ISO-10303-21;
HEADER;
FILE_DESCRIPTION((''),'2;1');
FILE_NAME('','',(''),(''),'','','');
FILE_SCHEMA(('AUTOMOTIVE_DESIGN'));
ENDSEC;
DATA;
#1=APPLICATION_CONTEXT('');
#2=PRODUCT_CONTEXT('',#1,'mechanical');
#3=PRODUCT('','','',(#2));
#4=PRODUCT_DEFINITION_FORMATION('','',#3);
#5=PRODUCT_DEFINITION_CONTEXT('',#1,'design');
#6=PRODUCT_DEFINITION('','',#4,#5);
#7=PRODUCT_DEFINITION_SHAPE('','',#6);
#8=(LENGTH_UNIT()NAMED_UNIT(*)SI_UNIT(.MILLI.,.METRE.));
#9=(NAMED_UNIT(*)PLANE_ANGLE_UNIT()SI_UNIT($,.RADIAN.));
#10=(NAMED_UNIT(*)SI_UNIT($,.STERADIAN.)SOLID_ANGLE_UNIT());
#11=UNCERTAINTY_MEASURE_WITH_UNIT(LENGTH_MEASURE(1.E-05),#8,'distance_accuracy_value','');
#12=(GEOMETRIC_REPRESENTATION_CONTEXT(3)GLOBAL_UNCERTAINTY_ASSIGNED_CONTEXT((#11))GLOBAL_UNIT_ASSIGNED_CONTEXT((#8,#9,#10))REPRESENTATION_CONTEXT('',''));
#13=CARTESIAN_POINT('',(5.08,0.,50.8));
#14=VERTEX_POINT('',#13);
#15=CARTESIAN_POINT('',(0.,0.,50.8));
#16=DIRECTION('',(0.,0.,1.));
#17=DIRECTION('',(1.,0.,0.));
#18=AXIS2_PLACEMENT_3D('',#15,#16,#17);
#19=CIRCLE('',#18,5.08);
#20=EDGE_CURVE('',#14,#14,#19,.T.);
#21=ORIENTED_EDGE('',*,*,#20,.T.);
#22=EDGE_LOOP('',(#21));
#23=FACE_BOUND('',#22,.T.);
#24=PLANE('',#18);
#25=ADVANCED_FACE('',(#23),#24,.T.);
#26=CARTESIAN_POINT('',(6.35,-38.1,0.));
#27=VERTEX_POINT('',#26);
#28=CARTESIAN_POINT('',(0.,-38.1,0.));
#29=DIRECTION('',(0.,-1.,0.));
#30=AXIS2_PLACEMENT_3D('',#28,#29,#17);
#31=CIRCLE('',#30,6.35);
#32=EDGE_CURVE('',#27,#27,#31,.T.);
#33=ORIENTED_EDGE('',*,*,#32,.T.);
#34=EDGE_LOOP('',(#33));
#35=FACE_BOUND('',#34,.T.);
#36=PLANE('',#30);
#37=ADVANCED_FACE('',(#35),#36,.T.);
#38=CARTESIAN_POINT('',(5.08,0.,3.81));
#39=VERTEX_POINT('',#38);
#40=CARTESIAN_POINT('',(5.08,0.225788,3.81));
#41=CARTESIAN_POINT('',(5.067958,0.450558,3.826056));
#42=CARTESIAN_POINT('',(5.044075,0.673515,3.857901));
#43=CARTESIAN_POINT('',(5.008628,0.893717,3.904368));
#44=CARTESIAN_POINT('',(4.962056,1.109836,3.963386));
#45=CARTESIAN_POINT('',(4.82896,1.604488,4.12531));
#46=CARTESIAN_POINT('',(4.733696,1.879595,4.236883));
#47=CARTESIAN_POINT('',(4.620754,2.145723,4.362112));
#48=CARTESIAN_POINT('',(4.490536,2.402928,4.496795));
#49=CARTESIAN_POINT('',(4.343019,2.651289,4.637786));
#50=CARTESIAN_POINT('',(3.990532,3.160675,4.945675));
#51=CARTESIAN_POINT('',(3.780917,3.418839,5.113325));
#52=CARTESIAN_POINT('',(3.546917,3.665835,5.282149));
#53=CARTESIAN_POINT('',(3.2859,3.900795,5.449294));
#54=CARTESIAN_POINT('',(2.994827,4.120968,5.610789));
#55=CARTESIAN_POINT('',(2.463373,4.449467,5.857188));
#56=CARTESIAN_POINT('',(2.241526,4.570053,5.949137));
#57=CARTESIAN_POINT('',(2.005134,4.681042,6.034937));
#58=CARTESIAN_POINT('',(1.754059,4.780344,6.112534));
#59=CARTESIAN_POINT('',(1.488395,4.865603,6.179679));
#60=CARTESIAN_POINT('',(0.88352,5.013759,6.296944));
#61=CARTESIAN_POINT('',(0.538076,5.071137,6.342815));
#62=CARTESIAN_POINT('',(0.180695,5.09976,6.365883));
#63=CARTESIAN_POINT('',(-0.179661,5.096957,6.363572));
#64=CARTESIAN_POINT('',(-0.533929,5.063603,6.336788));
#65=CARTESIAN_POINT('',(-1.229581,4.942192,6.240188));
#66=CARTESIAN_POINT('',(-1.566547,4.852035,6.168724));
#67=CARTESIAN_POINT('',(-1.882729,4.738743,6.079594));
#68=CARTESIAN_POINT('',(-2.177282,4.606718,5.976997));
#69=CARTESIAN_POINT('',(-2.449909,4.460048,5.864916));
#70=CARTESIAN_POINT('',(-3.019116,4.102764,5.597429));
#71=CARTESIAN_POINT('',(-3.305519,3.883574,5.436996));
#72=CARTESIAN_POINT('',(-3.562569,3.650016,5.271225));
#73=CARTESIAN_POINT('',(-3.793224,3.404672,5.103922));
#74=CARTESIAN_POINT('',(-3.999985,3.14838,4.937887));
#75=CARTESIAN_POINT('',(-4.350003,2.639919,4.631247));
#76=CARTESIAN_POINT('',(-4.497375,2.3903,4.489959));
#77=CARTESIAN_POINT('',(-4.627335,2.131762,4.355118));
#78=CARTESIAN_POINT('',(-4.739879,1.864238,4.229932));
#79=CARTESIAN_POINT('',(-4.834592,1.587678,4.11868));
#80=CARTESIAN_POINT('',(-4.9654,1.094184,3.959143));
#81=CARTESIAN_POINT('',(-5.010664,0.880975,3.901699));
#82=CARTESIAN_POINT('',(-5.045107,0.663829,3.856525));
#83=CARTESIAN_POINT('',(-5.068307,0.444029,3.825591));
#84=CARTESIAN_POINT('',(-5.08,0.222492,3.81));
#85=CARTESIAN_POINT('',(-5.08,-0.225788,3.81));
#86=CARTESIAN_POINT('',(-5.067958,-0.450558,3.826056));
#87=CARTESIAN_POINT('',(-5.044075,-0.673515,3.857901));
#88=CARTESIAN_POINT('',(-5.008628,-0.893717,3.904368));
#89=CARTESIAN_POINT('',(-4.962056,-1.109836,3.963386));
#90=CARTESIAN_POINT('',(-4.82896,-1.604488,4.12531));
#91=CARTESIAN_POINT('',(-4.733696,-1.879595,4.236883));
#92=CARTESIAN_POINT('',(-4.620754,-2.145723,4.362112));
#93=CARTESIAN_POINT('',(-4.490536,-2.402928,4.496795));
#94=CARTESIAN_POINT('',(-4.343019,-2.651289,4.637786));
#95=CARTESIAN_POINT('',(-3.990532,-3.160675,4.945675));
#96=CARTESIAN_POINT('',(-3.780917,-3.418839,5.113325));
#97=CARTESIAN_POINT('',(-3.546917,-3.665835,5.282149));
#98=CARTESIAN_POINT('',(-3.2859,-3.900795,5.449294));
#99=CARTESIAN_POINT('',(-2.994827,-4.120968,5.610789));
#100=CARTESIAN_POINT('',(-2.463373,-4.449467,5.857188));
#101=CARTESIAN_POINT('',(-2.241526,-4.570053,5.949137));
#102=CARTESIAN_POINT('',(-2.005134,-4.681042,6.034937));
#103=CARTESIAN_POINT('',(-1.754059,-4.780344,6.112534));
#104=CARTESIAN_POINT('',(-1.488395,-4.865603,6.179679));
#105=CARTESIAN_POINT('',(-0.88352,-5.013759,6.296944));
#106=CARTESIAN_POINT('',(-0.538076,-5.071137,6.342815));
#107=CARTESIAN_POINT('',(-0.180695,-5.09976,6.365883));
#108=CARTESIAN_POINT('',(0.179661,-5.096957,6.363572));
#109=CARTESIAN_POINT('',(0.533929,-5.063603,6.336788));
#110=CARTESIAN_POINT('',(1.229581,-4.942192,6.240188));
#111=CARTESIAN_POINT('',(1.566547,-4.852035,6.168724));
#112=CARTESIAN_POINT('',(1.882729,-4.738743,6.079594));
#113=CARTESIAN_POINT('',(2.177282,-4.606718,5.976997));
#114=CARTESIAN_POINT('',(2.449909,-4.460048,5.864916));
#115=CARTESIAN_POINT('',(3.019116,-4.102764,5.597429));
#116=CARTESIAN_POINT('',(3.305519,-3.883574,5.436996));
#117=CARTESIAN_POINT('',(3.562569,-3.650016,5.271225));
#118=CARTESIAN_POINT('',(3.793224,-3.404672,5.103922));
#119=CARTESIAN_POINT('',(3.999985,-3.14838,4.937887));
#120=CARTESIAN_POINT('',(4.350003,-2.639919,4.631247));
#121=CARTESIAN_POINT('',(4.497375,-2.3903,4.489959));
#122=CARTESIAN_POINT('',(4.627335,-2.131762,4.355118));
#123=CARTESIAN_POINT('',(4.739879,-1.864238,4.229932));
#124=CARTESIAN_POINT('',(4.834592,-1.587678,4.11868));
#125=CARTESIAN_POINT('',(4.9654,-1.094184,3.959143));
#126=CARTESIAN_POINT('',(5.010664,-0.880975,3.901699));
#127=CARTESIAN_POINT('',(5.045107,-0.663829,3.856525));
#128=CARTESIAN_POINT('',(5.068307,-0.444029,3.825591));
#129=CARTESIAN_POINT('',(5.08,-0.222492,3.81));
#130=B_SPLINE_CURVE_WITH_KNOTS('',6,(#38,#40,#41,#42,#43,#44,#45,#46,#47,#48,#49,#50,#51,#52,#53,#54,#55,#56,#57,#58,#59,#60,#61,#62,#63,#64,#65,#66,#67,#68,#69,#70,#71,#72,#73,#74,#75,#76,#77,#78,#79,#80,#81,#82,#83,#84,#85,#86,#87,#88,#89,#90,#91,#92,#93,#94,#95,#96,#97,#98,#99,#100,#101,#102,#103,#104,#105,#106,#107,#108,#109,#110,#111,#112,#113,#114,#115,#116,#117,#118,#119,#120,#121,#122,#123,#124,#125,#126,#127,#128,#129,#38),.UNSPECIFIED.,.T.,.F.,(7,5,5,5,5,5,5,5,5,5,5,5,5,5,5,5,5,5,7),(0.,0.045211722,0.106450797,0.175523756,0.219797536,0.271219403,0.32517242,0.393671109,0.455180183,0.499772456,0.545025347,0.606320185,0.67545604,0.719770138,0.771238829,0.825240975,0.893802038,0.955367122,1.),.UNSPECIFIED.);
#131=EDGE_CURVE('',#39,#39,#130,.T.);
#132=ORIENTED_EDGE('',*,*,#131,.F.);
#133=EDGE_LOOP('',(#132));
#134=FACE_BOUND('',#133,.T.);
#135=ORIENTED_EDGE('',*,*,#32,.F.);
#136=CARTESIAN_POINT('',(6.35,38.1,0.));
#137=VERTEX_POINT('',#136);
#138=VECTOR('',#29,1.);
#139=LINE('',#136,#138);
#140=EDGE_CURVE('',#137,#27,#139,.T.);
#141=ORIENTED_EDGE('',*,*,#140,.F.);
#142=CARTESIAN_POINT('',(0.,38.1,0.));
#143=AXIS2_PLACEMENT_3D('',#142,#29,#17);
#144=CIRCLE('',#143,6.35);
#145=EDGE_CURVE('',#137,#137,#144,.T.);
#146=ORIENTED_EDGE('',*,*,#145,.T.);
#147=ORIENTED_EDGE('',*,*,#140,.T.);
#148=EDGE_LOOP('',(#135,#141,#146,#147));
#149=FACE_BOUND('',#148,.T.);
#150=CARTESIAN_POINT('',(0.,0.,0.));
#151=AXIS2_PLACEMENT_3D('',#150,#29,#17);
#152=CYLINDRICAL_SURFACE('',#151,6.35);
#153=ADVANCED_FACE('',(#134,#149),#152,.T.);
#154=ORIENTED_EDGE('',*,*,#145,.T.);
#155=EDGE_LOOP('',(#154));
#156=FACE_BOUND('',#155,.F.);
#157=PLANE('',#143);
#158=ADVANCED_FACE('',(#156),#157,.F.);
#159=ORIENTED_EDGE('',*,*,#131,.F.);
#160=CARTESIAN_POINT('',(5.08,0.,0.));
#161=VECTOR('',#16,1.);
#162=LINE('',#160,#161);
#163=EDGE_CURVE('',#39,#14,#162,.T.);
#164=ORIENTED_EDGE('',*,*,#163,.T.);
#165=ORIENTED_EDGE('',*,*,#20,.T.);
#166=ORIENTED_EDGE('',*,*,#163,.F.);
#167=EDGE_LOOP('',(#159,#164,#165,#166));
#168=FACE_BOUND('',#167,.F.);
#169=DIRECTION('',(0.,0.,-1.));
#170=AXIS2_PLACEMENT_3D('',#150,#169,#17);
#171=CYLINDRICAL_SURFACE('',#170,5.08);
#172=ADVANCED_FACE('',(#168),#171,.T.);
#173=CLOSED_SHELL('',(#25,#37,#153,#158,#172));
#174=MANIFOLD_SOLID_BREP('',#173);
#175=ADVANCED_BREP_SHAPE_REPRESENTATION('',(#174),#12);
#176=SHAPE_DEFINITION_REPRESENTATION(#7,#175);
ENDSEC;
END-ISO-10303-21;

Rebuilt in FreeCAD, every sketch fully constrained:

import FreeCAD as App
import Part
import Sketcher

V = App.Vector
Q = App.Units.Quantity

doc = App.newDocument("Part")
body = doc.addObject("PartDesign::Body", "Body")

# Sketch on XZ plane
sketch1 = doc.addObject("Sketcher::SketchObject", "Sketch")
body.addObject(sketch1)
sketch1.AttachmentSupport = (doc.XZ_Plane, [""])
sketch1.MapMode = "FlatFace"
sketch1.addGeometry(Part.Circle(V(0, 0, 0), V(0, 0, 1), 6.35), False)
sketch1.addConstraint(Sketcher.Constraint("Coincident", 0, 3, -1, 1))
sketch1.addConstraint(Sketcher.Constraint("Diameter", 0, Q("0.5 in")))
pad1 = doc.addObject("PartDesign::Pad", "Pad")
body.addObject(pad1)
pad1.Profile = sketch1
pad1.Length = Q("3 in")
pad1.Midplane = True

# Sketch on XY plane
sketch2 = doc.addObject("Sketcher::SketchObject", "Sketch001")
body.addObject(sketch2)
sketch2.AttachmentSupport = (doc.XY_Plane, [""])
sketch2.MapMode = "FlatFace"
sketch2.addGeometry(Part.Circle(V(0, 0, 0), V(0, 0, 1), 5.08), False)
sketch2.addConstraint(Sketcher.Constraint("Coincident", 0, 3, -1, 1))
sketch2.addConstraint(Sketcher.Constraint("Diameter", 0, Q("0.4 in")))
pad2 = doc.addObject("PartDesign::Pad", "Pad001")
body.addObject(pad2)
pad2.Profile = sketch2
pad2.Length = Q("2 in")

doc.recompute()
